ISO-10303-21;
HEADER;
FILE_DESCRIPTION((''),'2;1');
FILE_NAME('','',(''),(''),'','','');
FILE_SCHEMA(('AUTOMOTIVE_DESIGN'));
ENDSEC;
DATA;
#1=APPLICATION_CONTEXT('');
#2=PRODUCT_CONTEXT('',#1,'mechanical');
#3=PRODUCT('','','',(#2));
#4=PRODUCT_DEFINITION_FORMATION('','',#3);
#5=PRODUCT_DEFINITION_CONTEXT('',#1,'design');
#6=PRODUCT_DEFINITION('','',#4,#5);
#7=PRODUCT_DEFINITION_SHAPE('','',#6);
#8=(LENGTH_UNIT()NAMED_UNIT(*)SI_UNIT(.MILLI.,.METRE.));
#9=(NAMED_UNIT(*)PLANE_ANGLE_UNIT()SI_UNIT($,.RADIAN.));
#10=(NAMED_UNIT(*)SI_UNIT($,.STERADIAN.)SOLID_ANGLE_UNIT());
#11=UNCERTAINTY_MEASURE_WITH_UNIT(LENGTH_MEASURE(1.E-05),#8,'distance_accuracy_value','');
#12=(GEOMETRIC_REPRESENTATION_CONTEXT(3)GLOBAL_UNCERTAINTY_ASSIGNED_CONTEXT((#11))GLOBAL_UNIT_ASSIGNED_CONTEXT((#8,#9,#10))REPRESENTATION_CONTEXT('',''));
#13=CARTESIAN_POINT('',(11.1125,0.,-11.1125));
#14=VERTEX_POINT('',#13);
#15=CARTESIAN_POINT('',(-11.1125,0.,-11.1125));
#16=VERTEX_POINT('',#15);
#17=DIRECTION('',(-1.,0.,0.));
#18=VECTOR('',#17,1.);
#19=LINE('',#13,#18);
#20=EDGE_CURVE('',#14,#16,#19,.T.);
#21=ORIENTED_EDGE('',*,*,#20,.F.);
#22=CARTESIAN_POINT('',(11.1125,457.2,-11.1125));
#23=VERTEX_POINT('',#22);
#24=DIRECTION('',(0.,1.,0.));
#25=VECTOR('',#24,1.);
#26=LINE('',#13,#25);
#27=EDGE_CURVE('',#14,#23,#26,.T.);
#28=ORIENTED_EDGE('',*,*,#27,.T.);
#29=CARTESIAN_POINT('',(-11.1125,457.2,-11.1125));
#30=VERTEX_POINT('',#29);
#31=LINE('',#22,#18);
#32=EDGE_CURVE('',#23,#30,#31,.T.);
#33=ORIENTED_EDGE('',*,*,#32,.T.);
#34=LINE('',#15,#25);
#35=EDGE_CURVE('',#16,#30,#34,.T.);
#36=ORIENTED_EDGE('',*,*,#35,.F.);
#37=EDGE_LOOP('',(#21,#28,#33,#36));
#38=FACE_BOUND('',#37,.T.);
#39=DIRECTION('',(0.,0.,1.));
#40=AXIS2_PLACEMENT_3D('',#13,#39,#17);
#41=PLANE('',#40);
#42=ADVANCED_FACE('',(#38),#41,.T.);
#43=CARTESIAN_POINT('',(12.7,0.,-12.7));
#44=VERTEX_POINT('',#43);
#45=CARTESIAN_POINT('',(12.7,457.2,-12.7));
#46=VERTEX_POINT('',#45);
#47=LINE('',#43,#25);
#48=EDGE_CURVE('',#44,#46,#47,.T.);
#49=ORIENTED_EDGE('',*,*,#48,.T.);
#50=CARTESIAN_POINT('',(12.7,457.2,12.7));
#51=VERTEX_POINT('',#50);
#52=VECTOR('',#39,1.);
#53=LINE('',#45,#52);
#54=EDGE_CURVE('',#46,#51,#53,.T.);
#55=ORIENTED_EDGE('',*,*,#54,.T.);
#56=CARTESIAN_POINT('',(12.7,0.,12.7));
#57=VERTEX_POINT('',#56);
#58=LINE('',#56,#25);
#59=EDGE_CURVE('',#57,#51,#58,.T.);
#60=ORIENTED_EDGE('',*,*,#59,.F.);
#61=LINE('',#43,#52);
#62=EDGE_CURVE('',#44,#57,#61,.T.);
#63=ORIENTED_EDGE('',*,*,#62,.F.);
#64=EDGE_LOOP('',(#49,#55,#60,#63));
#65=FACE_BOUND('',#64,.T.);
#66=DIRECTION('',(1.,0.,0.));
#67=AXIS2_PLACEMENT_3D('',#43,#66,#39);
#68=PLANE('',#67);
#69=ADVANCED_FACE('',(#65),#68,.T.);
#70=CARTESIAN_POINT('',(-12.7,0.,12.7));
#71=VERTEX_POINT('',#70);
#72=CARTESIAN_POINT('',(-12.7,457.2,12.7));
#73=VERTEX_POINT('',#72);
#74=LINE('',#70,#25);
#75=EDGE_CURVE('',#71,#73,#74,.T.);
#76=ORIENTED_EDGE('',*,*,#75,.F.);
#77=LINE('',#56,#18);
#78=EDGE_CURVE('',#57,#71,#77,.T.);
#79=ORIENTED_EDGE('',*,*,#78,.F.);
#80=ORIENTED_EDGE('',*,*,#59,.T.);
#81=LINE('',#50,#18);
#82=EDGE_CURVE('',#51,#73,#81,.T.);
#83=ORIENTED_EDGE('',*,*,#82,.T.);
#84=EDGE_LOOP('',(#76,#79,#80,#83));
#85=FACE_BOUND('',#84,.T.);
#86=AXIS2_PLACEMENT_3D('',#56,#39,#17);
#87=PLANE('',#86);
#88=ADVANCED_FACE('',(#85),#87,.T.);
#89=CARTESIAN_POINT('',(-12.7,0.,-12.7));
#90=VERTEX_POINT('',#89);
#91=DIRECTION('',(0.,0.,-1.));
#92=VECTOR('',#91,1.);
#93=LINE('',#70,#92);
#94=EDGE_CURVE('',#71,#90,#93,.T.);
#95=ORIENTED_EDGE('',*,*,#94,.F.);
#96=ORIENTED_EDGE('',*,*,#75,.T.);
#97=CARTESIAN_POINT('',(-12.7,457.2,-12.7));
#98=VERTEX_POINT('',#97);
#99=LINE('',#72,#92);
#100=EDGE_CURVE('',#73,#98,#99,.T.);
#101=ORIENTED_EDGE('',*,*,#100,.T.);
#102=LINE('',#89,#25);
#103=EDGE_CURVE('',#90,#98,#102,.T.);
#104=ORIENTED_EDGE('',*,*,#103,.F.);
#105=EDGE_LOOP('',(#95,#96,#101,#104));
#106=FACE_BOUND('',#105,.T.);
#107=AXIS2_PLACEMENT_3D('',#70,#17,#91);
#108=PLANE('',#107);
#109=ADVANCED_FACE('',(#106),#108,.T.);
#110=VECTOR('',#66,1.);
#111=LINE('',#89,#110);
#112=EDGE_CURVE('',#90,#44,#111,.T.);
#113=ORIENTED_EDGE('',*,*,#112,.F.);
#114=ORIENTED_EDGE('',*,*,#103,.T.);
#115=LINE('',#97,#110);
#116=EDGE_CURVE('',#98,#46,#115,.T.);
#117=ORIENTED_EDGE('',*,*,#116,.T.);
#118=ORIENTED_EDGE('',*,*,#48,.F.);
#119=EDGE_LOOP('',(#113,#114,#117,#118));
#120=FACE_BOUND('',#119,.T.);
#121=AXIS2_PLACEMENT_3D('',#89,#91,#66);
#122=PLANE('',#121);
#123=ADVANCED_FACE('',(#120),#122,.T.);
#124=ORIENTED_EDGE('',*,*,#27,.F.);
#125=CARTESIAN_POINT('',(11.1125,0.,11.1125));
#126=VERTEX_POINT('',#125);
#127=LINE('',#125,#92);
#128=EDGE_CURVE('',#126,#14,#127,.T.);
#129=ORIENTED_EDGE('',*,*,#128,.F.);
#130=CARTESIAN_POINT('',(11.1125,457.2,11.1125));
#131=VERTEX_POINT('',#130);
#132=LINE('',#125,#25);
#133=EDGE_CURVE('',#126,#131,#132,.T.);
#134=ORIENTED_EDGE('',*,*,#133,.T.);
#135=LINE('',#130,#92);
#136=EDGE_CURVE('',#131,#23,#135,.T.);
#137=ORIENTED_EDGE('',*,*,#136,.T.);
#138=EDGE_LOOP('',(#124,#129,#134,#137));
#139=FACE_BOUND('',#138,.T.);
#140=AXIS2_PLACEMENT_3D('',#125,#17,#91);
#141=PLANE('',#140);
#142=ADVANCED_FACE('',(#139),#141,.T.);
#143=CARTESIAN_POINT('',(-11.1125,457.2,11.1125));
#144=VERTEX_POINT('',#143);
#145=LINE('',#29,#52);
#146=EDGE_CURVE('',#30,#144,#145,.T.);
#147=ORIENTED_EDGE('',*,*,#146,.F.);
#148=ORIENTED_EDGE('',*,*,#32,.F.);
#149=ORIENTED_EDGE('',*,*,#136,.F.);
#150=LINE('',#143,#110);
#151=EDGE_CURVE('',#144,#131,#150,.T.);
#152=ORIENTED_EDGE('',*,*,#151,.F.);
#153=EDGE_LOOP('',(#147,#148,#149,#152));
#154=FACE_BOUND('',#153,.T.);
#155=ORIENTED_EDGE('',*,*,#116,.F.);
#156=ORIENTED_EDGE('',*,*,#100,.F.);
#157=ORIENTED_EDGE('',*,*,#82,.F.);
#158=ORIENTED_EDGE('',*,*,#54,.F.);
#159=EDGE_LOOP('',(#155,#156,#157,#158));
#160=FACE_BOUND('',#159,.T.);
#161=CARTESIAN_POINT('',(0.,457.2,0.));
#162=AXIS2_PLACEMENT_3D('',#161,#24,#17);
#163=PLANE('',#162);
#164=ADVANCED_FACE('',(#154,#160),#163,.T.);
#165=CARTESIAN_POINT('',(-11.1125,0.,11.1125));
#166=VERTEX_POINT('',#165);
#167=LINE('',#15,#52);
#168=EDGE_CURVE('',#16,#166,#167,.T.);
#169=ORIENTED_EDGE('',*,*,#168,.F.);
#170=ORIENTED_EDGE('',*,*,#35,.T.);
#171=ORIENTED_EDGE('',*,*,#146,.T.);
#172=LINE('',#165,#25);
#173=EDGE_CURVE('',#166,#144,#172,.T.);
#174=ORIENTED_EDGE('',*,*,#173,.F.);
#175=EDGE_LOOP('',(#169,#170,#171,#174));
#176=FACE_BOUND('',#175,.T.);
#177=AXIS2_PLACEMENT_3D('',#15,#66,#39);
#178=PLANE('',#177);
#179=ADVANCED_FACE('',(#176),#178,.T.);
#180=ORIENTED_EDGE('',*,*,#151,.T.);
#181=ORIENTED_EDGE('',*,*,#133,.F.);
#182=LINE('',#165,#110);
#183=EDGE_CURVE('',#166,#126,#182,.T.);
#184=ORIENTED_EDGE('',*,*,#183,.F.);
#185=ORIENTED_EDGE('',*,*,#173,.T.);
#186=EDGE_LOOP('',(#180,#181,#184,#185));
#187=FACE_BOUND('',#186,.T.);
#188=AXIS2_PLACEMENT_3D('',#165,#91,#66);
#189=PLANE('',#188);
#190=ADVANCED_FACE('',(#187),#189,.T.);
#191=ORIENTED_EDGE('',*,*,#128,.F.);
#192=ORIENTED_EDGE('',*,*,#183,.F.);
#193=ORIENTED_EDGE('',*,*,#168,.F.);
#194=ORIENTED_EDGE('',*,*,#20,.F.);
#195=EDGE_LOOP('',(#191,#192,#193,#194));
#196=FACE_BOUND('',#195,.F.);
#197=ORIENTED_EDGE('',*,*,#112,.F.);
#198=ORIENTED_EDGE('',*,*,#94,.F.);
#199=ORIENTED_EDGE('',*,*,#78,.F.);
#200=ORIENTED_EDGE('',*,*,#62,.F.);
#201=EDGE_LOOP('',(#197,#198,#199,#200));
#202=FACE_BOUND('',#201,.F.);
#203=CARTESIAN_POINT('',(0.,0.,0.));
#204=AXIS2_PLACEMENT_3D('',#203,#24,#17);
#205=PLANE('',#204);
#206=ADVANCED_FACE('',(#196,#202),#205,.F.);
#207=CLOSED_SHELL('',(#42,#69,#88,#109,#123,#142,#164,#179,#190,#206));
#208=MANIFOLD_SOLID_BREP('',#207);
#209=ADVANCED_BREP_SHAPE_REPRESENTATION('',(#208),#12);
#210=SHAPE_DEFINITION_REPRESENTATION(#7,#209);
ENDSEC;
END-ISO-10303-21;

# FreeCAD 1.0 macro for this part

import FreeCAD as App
import Part
import Sketcher
Q = App.Units.Quantity

doc = App.newDocument("Part")
body = doc.addObject("PartDesign::Body", "Body")

# Sketch on XZ plane
sketch1 = body.newObject("Sketcher::SketchObject", "Sketch")
sketch1.AttachmentSupport = (doc.getObject("XZ_Plane"), [""])
sketch1.MapMode = "FlatFace"
sketch1.addGeometry([
    Part.LineSegment(App.Vector(-13, 13, 0), App.Vector(13, 13, 0)),  # 0
    Part.LineSegment(App.Vector(13, 13, 0), App.Vector(13, -13, 0)),  # 1
    Part.LineSegment(App.Vector(13, -13, 0), App.Vector(-13, -13, 0)),  # 2
    Part.LineSegment(App.Vector(-13, -13, 0), App.Vector(-13, 13, 0)),  # 3
    Part.LineSegment(App.Vector(11, 11, 0), App.Vector(-11, 11, 0)),  # 4
    Part.LineSegment(App.Vector(-11, 11, 0), App.Vector(-11, -11, 0)),  # 5
    Part.LineSegment(App.Vector(-11, -11, 0), App.Vector(11, -11, 0)),  # 6
    Part.LineSegment(App.Vector(11, -11, 0), App.Vector(11, 11, 0)),  # 7
], False)
sketch1.addConstraint([
    Sketcher.Constraint("Coincident", 0, 2, 1, 1),
    Sketcher.Constraint("Coincident", 1, 2, 2, 1),
    Sketcher.Constraint("Coincident", 2, 2, 3, 1),
    Sketcher.Constraint("Coincident", 3, 2, 0, 1),
    Sketcher.Constraint("Coincident", 4, 2, 5, 1),
    Sketcher.Constraint("Coincident", 5, 2, 6, 1),
    Sketcher.Constraint("Coincident", 6, 2, 7, 1),
    Sketcher.Constraint("Coincident", 7, 2, 4, 1),
    Sketcher.Constraint("Horizontal", 0),
    Sketcher.Constraint("Vertical", 1),
    Sketcher.Constraint("Horizontal", 2),
    Sketcher.Constraint("Vertical", 3),
    Sketcher.Constraint("Horizontal", 4),
    Sketcher.Constraint("Vertical", 5),
    Sketcher.Constraint("Horizontal", 6),
    Sketcher.Constraint("Vertical", 7),
    Sketcher.Constraint("Symmetric", 0, 2, 2, 2, -1, 1),
    Sketcher.Constraint("Symmetric", 4, 2, 6, 2, -1, 1),
    Sketcher.Constraint("Equal", 2, 1),
    Sketcher.Constraint("Equal", 6, 5),
    Sketcher.Constraint("DistanceX", 0, 1, 0, 2, Q("1 in")),
    Sketcher.Constraint("DistanceX", 4, 2, 4, 1, Q("0.875 in")),
])
pad1 = body.newObject("PartDesign::Pad", "Pad")
pad1.Profile = sketch1
pad1.Length = Q("18 in")
pad1.Reversed = True

doc.recompute()
